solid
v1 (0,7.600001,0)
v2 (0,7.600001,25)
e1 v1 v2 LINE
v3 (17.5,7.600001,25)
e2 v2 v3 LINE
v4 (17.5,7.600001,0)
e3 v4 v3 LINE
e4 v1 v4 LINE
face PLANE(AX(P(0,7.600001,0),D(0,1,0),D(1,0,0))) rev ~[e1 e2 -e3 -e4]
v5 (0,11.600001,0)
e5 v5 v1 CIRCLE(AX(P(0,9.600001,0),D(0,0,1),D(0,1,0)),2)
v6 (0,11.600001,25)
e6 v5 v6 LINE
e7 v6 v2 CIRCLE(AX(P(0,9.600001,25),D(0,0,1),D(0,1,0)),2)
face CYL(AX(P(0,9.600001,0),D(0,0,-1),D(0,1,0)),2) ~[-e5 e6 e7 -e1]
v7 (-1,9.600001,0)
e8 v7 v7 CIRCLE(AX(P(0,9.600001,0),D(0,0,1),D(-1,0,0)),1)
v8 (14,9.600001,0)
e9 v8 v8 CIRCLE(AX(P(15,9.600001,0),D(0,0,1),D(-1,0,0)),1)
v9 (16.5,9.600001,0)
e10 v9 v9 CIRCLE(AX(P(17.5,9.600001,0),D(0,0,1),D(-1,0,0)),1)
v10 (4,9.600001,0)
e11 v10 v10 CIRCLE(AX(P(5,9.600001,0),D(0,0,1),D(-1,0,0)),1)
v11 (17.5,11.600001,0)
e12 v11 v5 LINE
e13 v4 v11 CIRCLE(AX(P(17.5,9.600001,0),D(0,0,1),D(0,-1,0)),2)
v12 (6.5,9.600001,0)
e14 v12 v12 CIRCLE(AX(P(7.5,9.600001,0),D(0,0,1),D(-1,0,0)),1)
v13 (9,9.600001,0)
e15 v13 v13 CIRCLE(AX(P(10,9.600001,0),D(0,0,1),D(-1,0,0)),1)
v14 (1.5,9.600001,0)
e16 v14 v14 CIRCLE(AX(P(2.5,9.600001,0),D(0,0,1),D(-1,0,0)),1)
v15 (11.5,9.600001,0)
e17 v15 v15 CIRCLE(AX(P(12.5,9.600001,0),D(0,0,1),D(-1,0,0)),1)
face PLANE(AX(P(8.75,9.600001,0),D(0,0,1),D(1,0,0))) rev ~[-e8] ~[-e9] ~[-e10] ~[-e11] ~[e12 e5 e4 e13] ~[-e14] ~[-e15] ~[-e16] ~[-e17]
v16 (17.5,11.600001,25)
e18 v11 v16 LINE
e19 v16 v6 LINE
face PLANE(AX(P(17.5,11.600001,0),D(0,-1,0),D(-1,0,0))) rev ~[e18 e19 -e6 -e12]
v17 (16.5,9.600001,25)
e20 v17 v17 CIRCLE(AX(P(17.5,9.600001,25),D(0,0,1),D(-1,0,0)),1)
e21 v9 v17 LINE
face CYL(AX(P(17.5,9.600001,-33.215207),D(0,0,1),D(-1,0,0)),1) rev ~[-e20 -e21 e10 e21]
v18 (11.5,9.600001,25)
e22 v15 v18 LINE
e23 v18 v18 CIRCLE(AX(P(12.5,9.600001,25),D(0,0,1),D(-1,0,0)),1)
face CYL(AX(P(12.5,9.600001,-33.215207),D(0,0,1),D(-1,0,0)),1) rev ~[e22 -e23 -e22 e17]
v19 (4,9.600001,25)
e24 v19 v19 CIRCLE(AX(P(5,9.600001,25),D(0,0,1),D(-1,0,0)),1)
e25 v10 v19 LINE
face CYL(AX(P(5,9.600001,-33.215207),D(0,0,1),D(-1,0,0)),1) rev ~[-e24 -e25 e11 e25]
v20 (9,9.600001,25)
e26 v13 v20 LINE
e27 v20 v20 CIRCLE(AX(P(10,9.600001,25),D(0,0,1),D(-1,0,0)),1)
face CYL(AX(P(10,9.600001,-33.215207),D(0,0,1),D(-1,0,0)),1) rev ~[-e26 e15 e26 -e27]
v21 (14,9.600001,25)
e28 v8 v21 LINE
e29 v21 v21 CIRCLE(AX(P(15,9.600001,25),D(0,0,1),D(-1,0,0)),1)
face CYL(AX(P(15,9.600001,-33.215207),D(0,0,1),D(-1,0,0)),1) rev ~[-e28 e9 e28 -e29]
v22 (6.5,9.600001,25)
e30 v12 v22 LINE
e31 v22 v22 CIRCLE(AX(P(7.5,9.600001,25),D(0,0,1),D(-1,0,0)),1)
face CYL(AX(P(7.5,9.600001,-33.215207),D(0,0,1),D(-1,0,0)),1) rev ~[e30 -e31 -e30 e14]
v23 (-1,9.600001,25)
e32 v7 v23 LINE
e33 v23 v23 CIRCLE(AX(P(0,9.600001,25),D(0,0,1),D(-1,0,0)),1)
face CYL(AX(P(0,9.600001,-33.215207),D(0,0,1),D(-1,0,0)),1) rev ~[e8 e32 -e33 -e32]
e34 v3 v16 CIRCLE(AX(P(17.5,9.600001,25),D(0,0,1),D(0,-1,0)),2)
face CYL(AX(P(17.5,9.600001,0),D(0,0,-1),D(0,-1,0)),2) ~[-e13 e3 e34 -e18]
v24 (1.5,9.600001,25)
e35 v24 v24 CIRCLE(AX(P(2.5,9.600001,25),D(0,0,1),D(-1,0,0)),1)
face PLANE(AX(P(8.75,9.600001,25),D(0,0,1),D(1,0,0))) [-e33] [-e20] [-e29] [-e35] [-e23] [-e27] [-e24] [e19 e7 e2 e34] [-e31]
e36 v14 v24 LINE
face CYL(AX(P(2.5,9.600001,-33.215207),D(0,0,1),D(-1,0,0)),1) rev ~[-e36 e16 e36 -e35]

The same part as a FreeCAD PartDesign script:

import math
import FreeCAD as App
import Part
import Sketcher

doc = App.newDocument("Part")
body = doc.addObject("PartDesign::Body", "Body")

sketch1 = body.newObject("Sketcher::SketchObject", "Sketch")
sketch1.AttachmentSupport = (doc.getObject("XY_Plane"), [""])
sketch1.MapMode = "FlatFace"
sketch1.addGeometry([
    Part.ArcOfCircle(Part.Circle(App.Vector(0, 9.6, 0), App.Vector(0, 0, 1), 2), math.radians(90), math.radians(270)),
    Part.LineSegment(App.Vector(0, 7.6, 0), App.Vector(17.5, 7.6, 0)),
    Part.ArcOfCircle(Part.Circle(App.Vector(17.5, 9.6, 0), App.Vector(0, 0, 1), 2), math.radians(-90), math.radians(90)),
    Part.LineSegment(App.Vector(17.5, 11.6, 0), App.Vector(0, 11.6, 0)),
], False)
sketch1.addConstraint([
    Sketcher.Constraint("Tangent", 0, 2, 1, 1),
    Sketcher.Constraint("Tangent", 1, 2, 2, 1),
    Sketcher.Constraint("Tangent", 2, 2, 3, 1),
    Sketcher.Constraint("Tangent", 3, 2, 0, 1),
    Sketcher.Constraint("Horizontal", 1),
    Sketcher.Constraint("Horizontal", 3),
    Sketcher.Constraint("PointOnObject", 0, 3, -2),
    Sketcher.Constraint("Radius", 0, 2.0),
    Sketcher.Constraint("DistanceX", 1, 1, 1, 2, 17.5),
    Sketcher.Constraint("DistanceY", -1, 1, 0, 3, 9.600001),
])
pad1 = body.newObject("PartDesign::Pad", "Pad")
pad1.Profile = sketch1
pad1.Length = 25

sketch2 = body.newObject("Sketcher::SketchObject", "Sketch001")
sketch2.AttachmentSupport = (doc.getObject("XY_Plane"), [""])
sketch2.MapMode = "FlatFace"
sketch2.addGeometry([
    Part.Circle(App.Vector(0, 9.6, 0), App.Vector(0, 0, 1), 1),
    Part.Circle(App.Vector(2.5, 9.6, 0), App.Vector(0, 0, 1), 1),
    Part.Circle(App.Vector(5, 9.6, 0), App.Vector(0, 0, 1), 1),
    Part.Circle(App.Vector(7.5, 9.6, 0), App.Vector(0, 0, 1), 1),
    Part.Circle(App.Vector(10, 9.6, 0), App.Vector(0, 0, 1), 1),
    Part.Circle(App.Vector(12.5, 9.6, 0), App.Vector(0, 0, 1), 1),
    Part.Circle(App.Vector(15, 9.6, 0), App.Vector(0, 0, 1), 1),
    Part.Circle(App.Vector(17.5, 9.6, 0), App.Vector(0, 0, 1), 1),
], False)
sketch2.addConstraint([
    Sketcher.Constraint("Equal", 0, 1),
    Sketcher.Constraint("Equal", 1, 2),
    Sketcher.Constraint("Equal", 2, 3),
    Sketcher.Constraint("Equal", 3, 4),
    Sketcher.Constraint("Equal", 4, 5),
    Sketcher.Constraint("Equal", 5, 6),
    Sketcher.Constraint("Equal", 6, 7),
    Sketcher.Constraint("PointOnObject", 0, 3, -2),
    Sketcher.Constraint("Horizontal", 0, 3, 1, 3),
    Sketcher.Constraint("Horizontal", 1, 3, 2, 3),
    Sketcher.Constraint("Horizontal", 2, 3, 3, 3),
    Sketcher.Constraint("Horizontal", 3, 3, 4, 3),
    Sketcher.Constraint("Horizontal", 4, 3, 5, 3),
    Sketcher.Constraint("Horizontal", 5, 3, 6, 3),
    Sketcher.Constraint("Horizontal", 6, 3, 7, 3),
    Sketcher.Constraint("Diameter", 0, 2.0),
    Sketcher.Constraint("DistanceX", -1, 1, 2, 3, 5.0),
    Sketcher.Constraint("DistanceX", -1, 1, 4, 3, 10.0),
    Sketcher.Constraint("DistanceX", -1, 1, 6, 3, 15.0),
    Sketcher.Constraint("DistanceX", 1, 3, 3, 3, 5.0),
    Sketcher.Constraint("DistanceX", 3, 3, 5, 3, 5.0),
    Sketcher.Constraint("DistanceX", 5, 3, 7, 3, 5.0),
    Sketcher.Constraint("DistanceY", -1, 1, 0, 3, 9.600001),
    Sketcher.Constraint("DistanceX", -1, 1, 1, 3, 2.5),
])
doc.recompute()
hole = body.newObject("PartDesign::Hole", "Hole")
hole.Profile = sketch2
hole.ThreadType = "None"
hole.Diameter = 2
hole.DepthType = "ThroughAll"
hole.Reversed = True

doc.recompute()
